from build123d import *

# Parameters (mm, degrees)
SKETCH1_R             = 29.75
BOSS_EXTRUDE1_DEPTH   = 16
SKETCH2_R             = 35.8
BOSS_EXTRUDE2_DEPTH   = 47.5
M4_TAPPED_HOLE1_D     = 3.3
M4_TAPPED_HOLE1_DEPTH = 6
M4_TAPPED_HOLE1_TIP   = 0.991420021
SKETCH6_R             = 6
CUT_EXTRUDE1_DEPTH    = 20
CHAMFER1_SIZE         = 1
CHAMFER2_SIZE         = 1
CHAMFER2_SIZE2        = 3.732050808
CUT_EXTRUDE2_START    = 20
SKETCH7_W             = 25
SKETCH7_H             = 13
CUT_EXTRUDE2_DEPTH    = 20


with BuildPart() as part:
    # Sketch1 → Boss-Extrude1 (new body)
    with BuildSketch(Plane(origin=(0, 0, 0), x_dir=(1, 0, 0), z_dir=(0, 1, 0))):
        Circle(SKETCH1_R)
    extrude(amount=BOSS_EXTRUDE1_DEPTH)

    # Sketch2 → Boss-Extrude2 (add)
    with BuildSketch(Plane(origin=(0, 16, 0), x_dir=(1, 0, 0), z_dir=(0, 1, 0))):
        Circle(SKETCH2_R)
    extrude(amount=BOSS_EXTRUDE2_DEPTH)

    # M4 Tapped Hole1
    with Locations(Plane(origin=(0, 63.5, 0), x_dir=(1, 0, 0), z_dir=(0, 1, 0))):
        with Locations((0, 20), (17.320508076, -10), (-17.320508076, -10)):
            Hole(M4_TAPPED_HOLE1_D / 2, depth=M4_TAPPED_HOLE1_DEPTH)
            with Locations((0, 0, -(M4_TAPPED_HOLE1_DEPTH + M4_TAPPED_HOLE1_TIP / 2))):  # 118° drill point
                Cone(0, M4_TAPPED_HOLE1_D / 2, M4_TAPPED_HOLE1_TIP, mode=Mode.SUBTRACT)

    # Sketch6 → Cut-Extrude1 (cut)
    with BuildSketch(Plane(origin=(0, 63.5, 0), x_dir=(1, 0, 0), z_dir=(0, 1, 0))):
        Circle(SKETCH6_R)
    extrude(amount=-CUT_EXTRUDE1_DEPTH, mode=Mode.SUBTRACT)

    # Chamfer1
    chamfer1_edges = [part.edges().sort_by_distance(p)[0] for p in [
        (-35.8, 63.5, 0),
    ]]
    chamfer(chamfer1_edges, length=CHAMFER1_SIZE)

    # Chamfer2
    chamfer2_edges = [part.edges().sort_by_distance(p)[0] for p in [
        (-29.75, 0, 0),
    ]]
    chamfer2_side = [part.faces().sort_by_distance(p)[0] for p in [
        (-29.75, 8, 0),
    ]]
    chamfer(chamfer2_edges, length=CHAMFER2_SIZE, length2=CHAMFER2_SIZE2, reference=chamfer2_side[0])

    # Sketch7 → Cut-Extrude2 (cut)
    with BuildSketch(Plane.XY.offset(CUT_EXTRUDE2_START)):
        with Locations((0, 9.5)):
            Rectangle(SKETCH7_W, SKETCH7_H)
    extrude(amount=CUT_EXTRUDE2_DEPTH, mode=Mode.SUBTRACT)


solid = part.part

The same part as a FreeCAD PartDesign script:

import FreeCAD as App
import Part
import Sketcher
Q = App.Units.Quantity


def edges_at(feature, points):
    """Names of the edges that pass closest to the given points."""
    edges = feature.Shape.Edges
    near = lambda p: min(range(len(edges)), key=lambda i: edges[i].distToShape(Part.Vertex(*p))[0])
    return sorted({f"Edge{near(p) + 1}" for p in points})


def add_polygon(sketch, points):
    """Adds a closed chain of lines whose ends are joined by coincident constraints."""
    first, n = sketch.GeometryCount, len(points)
    for a, b in zip(points, points[1:] + points[:1]):
        sketch.addGeometry(Part.LineSegment(App.Vector(*a, 0), App.Vector(*b, 0)), False)
    for i in range(n):
        sketch.addConstraint(Sketcher.Constraint("Coincident", first + i, 2, first + (i + 1) % n, 1))

doc = App.newDocument("Part")
body = doc.addObject("PartDesign::Body", "Body")

# Sketch on XZ plane
sketch1 = doc.addObject("Sketcher::SketchObject", "Sketch")
body.addObject(sketch1)
sketch1.AttachmentSupport = (doc.XZ_Plane, [""])
sketch1.MapMode = "FlatFace"
sketch1.addGeometry(Part.Circle(App.Vector(0, 0, 0), App.Vector(0, 0, 1), 30), False)
sketch1.addConstraint([
    Sketcher.Constraint("Coincident", 0, 3, -1, 1),
    Sketcher.Constraint("Diameter", 0, Q("59.5 mm")),
])
pad1 = doc.addObject("PartDesign::Pad", "Pad")
body.addObject(pad1)
pad1.Profile = sketch1
pad1.Length = 16
pad1.Reversed = True

# Sketch on XZ plane
sketch2 = doc.addObject("Sketcher::SketchObject", "Sketch001")
body.addObject(sketch2)
sketch2.AttachmentSupport = (doc.XZ_Plane, [""])
sketch2.MapMode = "FlatFace"
sketch2.AttachmentOffset = App.Placement(App.Vector(0, 0, -16), App.Rotation())
sketch2.addGeometry(Part.Circle(App.Vector(0, 0, 0), App.Vector(0, 0, 1), 36), False)
sketch2.addConstraint([
    Sketcher.Constraint("Coincident", 0, 3, -1, 1),
    Sketcher.Constraint("Diameter", 0, Q("71.6 mm")),
])
pad2 = doc.addObject("PartDesign::Pad", "Pad001")
body.addObject(pad2)
pad2.Profile = sketch2
pad2.Length = 47.5
pad2.Reversed = True

# Sketch on XZ plane
sketch3 = doc.addObject("Sketcher::SketchObject", "Sketch002")
body.addObject(sketch3)
sketch3.AttachmentSupport = (doc.XZ_Plane, [""])
sketch3.MapMode = "FlatFace"
sketch3.AttachmentOffset = App.Placement(App.Vector(0, 0, -63.5), App.Rotation())
sketch3.addGeometry([
    Part.Circle(App.Vector(0, -20, 0), App.Vector(0, 0, 1), 1.6),
    Part.Circle(App.Vector(17.3, 10, 0), App.Vector(0, 0, 1), 1.6),
    Part.Circle(App.Vector(-17.3, 10, 0), App.Vector(0, 0, 1), 1.6),
], False)
sketch3.addConstraint([
    Sketcher.Constraint("Equal", 0, 1),
    Sketcher.Constraint("Equal", 1, 2),
    Sketcher.Constraint("Symmetric", 1, 3, 2, 3, -2),
    Sketcher.Constraint("PointOnObject", 0, 3, -2),
    Sketcher.Constraint("Diameter", 0, Q("3.3 mm")),
    Sketcher.Constraint("DistanceY", 0, 3, -1, 1, Q("20 mm")),
    Sketcher.Constraint("DistanceY", -1, 1, 1, 3, Q("10 mm")),
    Sketcher.Constraint("DistanceX", -1, 1, 1, 3, Q("17.320508 mm")),
])
doc.recompute()
hole = doc.addObject("PartDesign::Hole", "Hole")
body.addObject(hole)
hole.Profile = sketch3
hole.ThreadType = "None"
hole.Diameter = 3.3
hole.DepthType = "Dimension"
hole.Depth = 6
hole.DrillPoint = "Angled"
hole.DrillPointAngle = 118
hole.Reversed = True

# Sketch on XZ plane
sketch4 = doc.addObject("Sketcher::SketchObject", "Sketch003")
body.addObject(sketch4)
sketch4.AttachmentSupport = (doc.XZ_Plane, [""])
sketch4.MapMode = "FlatFace"
sketch4.AttachmentOffset = App.Placement(App.Vector(0, 0, -63.5), App.Rotation())
sketch4.addGeometry(Part.Circle(App.Vector(0, 0, 0), App.Vector(0, 0, 1), 6), False)
sketch4.addConstraint([
    Sketcher.Constraint("Coincident", 0, 3, -1, 1),
    Sketcher.Constraint("Diameter", 0, Q("12 mm")),
])
pocket1 = doc.addObject("PartDesign::Pocket", "Pocket")
body.addObject(pocket1)
pocket1.Profile = sketch4
pocket1.Length = 20
pocket1.Reversed = True
doc.recompute()

chamfer = doc.addObject("PartDesign::Chamfer", "Chamfer")
body.addObject(chamfer)
chamfer.Base = (pocket1, edges_at(pocket1, [(-35.8, 63.5, 0)]))
chamfer.Size = 1
doc.recompute()

chamfer2 = doc.addObject("PartDesign::Chamfer", "Chamfer001")
body.addObject(chamfer2)
chamfer2.Base = (chamfer, edges_at(chamfer, [(-29.75, 0, 0)]))
chamfer2.ChamferType = "Two distances"
chamfer2.Size = 1
chamfer2.Size2 = 3.732051

# Sketch on XY plane
sketch5 = doc.addObject("Sketcher::SketchObject", "Sketch004")
body.addObject(sketch5)
sketch5.AttachmentSupport = (doc.XY_Plane, [""])
sketch5.MapMode = "FlatFace"
sketch5.AttachmentOffset = App.Placement(App.Vector(0, 0, 20), App.Rotation())
add_polygon(sketch5, [(-12, 16), (-12, 3), (12, 3), (12, 16)])  # lines 0-3
sketch5.addConstraint([
    Sketcher.Constraint("Vertical", 0),
    Sketcher.Constraint("Horizontal", 1),
    Sketcher.Constraint("Vertical", 2),
    Sketcher.Constraint("Horizontal", 3),
    Sketcher.Constraint("DistanceX", 1, 1, 1, 2, Q("25 mm")),
    Sketcher.Constraint("DistanceY", 0, 2, 0, 1, Q("13 mm")),
    Sketcher.Constraint("DistanceY", -1, 1, 0, 2, Q("3 mm")),
    Sketcher.Constraint("DistanceX", 0, 2, -1, 1, Q("12.5 mm")),
])
pocket2 = doc.addObject("PartDesign::Pocket", "Pocket001")
body.addObject(pocket2)
pocket2.Profile = sketch5
pocket2.Length = 20
pocket2.Reversed = True

doc.recompute()
